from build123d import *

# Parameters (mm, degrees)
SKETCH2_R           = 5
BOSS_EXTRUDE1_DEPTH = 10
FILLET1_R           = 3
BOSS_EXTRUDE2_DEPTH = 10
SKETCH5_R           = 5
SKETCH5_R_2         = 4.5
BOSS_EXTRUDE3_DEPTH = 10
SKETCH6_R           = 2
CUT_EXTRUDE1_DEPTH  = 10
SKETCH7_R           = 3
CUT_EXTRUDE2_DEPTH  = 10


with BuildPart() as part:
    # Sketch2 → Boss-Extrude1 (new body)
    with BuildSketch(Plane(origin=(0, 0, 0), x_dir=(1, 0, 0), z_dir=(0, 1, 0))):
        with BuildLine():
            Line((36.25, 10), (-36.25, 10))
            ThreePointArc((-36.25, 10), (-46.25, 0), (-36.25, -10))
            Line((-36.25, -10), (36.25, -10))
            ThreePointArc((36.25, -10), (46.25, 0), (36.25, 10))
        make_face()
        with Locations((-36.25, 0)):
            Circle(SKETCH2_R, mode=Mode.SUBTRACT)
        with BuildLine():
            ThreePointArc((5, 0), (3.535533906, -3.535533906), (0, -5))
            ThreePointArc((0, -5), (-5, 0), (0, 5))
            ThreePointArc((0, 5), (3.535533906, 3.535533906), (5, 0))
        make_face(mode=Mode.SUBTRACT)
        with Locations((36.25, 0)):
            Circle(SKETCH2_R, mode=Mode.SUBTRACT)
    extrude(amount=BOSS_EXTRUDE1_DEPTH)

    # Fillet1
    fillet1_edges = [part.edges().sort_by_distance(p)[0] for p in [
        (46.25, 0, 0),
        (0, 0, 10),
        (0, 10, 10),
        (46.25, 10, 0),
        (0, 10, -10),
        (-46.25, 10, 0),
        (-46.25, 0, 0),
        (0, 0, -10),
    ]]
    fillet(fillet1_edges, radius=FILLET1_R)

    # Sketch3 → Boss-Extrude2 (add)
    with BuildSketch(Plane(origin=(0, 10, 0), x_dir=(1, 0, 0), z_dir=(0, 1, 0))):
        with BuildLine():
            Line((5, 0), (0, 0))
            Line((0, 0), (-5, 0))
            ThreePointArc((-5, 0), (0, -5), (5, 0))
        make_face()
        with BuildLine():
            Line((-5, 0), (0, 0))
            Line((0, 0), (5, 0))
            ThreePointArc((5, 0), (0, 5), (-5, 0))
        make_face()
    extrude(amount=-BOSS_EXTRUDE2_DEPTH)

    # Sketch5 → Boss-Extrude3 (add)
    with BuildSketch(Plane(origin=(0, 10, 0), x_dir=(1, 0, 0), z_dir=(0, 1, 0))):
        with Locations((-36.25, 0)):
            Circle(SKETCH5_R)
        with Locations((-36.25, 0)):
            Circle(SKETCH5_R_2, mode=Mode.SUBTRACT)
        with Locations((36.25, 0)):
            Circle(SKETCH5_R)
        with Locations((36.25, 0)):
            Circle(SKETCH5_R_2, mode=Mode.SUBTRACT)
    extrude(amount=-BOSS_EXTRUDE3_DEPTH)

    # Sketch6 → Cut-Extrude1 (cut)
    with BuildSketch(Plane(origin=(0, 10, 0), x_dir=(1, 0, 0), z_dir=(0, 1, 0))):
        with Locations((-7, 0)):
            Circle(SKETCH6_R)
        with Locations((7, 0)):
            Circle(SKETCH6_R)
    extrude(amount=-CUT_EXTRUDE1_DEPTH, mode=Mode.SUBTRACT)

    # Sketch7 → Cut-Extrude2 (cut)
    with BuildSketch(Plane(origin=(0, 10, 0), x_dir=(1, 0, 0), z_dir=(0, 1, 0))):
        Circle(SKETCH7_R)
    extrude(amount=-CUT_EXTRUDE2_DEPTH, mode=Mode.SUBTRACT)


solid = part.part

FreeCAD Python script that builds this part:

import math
import FreeCAD as App
import Part
import Sketcher
from FreeCAD import Vector


def edges_at(feature, points):
    """Names of the edges that pass closest to the given points."""
    edges = feature.Shape.Edges
    near = lambda p: min(range(len(edges)), key=lambda i: edges[i].distToShape(Part.Vertex(*p))[0])
    return sorted({f"Edge{near(p) + 1}" for p in points})

doc = App.newDocument("Part")
params = doc.addObject("Spreadsheet::Sheet", "Params")
for row, (alias, value) in enumerate([
    ("sketch1_diameter", "10 mm"),
    ("sketch1_radius", "10 mm"),
    ("sketch1_width", "72.5 mm"),
    ("pad1_length", "10 mm"),
    ("fillet_radius", "3 mm"),
    ("sketch2_diameter", "10 mm"),
    ("pad2_length", "10 mm"),
    ("sketch3_diameter", "10 mm"),
    ("sketch3_diameter2", "9 mm"),
    ("pad3_length", "10 mm"),
    ("sketch4_diameter", "4 mm"),
    ("pocket1_length", "10 mm"),
    ("sketch5_diameter", "6 mm"),
    ("pocket2_length", "10 mm"),
], start=1):
    params.set(f"A{row}", alias)
    params.set(f"B{row}", "=" + value)
    params.setAlias(f"B{row}", alias)

body = doc.addObject("PartDesign::Body", "Body")

# Sketch on XZ plane
sketch1 = body.newObject("Sketcher::SketchObject", "Sketch")
sketch1.AttachmentSupport = (doc.getObject("XZ_Plane"), [""])
sketch1.MapMode = "FlatFace"
sketch1.addGeometry([
    Part.LineSegment(Vector(36, -10, 0), Vector(-36, -10, 0)),  # 0
    Part.ArcOfCircle(Part.Circle(Vector(-36, 0, 0), Vector(0, 0, 1), 10), math.radians(90), math.radians(270)),  # 1
    Part.LineSegment(Vector(-36, 10, 0), Vector(36, 10, 0)),  # 2
    Part.ArcOfCircle(Part.Circle(Vector(36, 0, 0), Vector(0, 0, 1), 10), math.radians(-90), math.radians(90)),  # 3
    Part.Circle(Vector(-36, 0, 0), Vector(0, 0, 1), 5),  # 4
    Part.ArcOfCircle(Part.Circle(Vector(0, 0, 0), Vector(0, 0, 1), 5), math.radians(-90), math.radians(0)),  # 5
    Part.ArcOfCircle(Part.Circle(Vector(0, 0, 0), Vector(0, 0, 1), 5), math.radians(0), math.radians(90)),  # 6
    Part.ArcOfCircle(Part.Circle(Vector(0, 0, 0), Vector(0, 0, 1), 5), math.radians(90), math.radians(270)),  # 7
    Part.Circle(Vector(36, 0, 0), Vector(0, 0, 1), 5),  # 8
], False)
sketch1.addConstraint([
    Sketcher.Constraint("Tangent", 0, 2, 1, 2),
    Sketcher.Constraint("Tangent", 1, 1, 2, 1),
    Sketcher.Constraint("Tangent", 2, 2, 3, 2),
    Sketcher.Constraint("Tangent", 3, 1, 0, 1),
    Sketcher.Constraint("Tangent", 5, 2, 6, 1),
    Sketcher.Constraint("Tangent", 6, 2, 7, 1),
    Sketcher.Constraint("Tangent", 7, 2, 5, 1),
    Sketcher.Constraint("Horizontal", 0),
    Sketcher.Constraint("Horizontal", 2),
    Sketcher.Constraint("Coincident", 5, 3, -1, 1),
    Sketcher.Constraint("Coincident", 4, 3, 1, 3),
    Sketcher.Constraint("Coincident", 8, 3, 3, 3),
    Sketcher.Constraint("Equal", 4, 5),
    Sketcher.Constraint("Equal", 7, 8),
    Sketcher.Constraint("Symmetric", 1, 3, 3, 3, -1, 1),
    Sketcher.Constraint("PointOnObject", 5, 2, -1),
    Sketcher.Constraint("PointOnObject", 6, 2, -2),
    Sketcher.Constraint("PointOnObject", 7, 2, -2),
    Sketcher.Constraint("Diameter", 4, 10.0),
    Sketcher.Constraint("Radius", 1, 10.0),
    Sketcher.Constraint("DistanceX", 0, 2, 0, 1, 72.5),
])
sketch1.setExpression("Constraints[18]", "Params.sketch1_diameter")
sketch1.setExpression("Constraints[19]", "Params.sketch1_radius")
sketch1.setExpression("Constraints[20]", "Params.sketch1_width")
pad1 = body.newObject("PartDesign::Pad", "Pad")
pad1.Profile = sketch1
pad1.setExpression("Length", "Params.pad1_length")
pad1.Reversed = True
doc.recompute()

fillet = body.newObject("PartDesign::Fillet", "Fillet")
fillet.Base = (pad1, edges_at(pad1, [
    (46.25, 0, 0),
    (0, 0, 10),
    (0, 10, 10),
    (46.25, 10, 0),
    (0, 10, -10),
    (-46.25, 10, 0),
    (-46.25, 0, 0),
    (0, 0, -10),
]))
fillet.setExpression("Radius", "Params.fillet_radius")

# Sketch on XZ plane
sketch2 = body.newObject("Sketcher::SketchObject", "Sketch001")
sketch2.AttachmentSupport = (doc.getObject("XZ_Plane"), [""])
sketch2.MapMode = "FlatFace"
sketch2.AttachmentOffset = App.Placement(Vector(0, 0, -10), App.Rotation())
sketch2.addGeometry(Part.Circle(Vector(0, 0, 0), Vector(0, 0, 1), 5), False)
sketch2.addConstraint([
    Sketcher.Constraint("Coincident", 0, 3, -1, 1),
    Sketcher.Constraint("Diameter", 0, 10.0),
])
sketch2.setExpression("Constraints[1]", "Params.sketch2_diameter")
pad2 = body.newObject("PartDesign::Pad", "Pad001")
pad2.Profile = sketch2
pad2.setExpression("Length", "Params.pad2_length")

# Sketch on XZ plane
sketch3 = body.newObject("Sketcher::SketchObject", "Sketch002")
sketch3.AttachmentSupport = (doc.getObject("XZ_Plane"), [""])
sketch3.MapMode = "FlatFace"
sketch3.AttachmentOffset = App.Placement(Vector(0, 0, -10), App.Rotation())
sketch3.addGeometry([
    Part.Circle(Vector(-36.2, 0, 0), Vector(0, 0, 1), 5),
    Part.Circle(Vector(-36.2, 0, 0), Vector(0, 0, 1), 4.5),
    Part.Circle(Vector(36.2, 0, 0), Vector(0, 0, 1), 5),
    Part.Circle(Vector(36.2, 0, 0), Vector(0, 0, 1), 4.5),
], False)
sketch3.addConstraint([
    Sketcher.Constraint("Coincident", 1, 3, 0, 3),
    Sketcher.Constraint("Coincident", 3, 3, 2, 3),
    Sketcher.Constraint("Equal", 0, 2),
    Sketcher.Constraint("Equal", 1, 3),
    Sketcher.Constraint("Symmetric", 0, 3, 2, 3, -1, 1),
    Sketcher.Constraint("PointOnObject", 0, 3, -1),
    Sketcher.Constraint("Diameter", 0, 10.0),
    Sketcher.Constraint("Diameter", 1, 9.0),
    Sketcher.Constraint("DistanceX", 0, 3, 2, 3, 72.5),
])
sketch3.setExpression("Constraints[6]", "Params.sketch3_diameter")
sketch3.setExpression("Constraints[7]", "Params.sketch3_diameter2")
pad3 = body.newObject("PartDesign::Pad", "Pad002")
pad3.Profile = sketch3
pad3.setExpression("Length", "Params.pad3_length")

# Sketch on XZ plane
sketch4 = body.newObject("Sketcher::SketchObject", "Sketch003")
sketch4.AttachmentSupport = (doc.getObject("XZ_Plane"), [""])
sketch4.MapMode = "FlatFace"
sketch4.AttachmentOffset = App.Placement(Vector(0, 0, -10), App.Rotation())
sketch4.addGeometry([
    Part.Circle(Vector(-7, 0, 0), Vector(0, 0, 1), 2),
    Part.Circle(Vector(7, 0, 0), Vector(0, 0, 1), 2),
], False)
sketch4.addConstraint([
    Sketcher.Constraint("Equal", 0, 1),
    Sketcher.Constraint("Symmetric", 0, 3, 1, 3, -1, 1),
    Sketcher.Constraint("PointOnObject", 0, 3, -1),
    Sketcher.Constraint("Diameter", 0, 4.0),
    Sketcher.Constraint("DistanceX", 0, 3, -1, 1, 7.0),
])
sketch4.setExpression("Constraints[3]", "Params.sketch4_diameter")
pocket1 = body.newObject("PartDesign::Pocket", "Pocket")
pocket1.Profile = sketch4
pocket1.setExpression("Length", "Params.pocket1_length")
pocket1.Reversed = True

# Sketch on XZ plane
sketch5 = body.newObject("Sketcher::SketchObject", "Sketch004")
sketch5.AttachmentSupport = (doc.getObject("XZ_Plane"), [""])
sketch5.MapMode = "FlatFace"
sketch5.AttachmentOffset = App.Placement(Vector(0, 0, -10), App.Rotation())
sketch5.addGeometry(Part.Circle(Vector(0, 0, 0), Vector(0, 0, 1), 3), False)
sketch5.addConstraint([
    Sketcher.Constraint("Coincident", 0, 3, -1, 1),
    Sketcher.Constraint("Diameter", 0, 6.0),
])
sketch5.setExpression("Constraints[1]", "Params.sketch5_diameter")
pocket2 = body.newObject("PartDesign::Pocket", "Pocket001")
pocket2.Profile = sketch5
pocket2.setExpression("Length", "Params.pocket2_length")
pocket2.Reversed = True

doc.recompute()
